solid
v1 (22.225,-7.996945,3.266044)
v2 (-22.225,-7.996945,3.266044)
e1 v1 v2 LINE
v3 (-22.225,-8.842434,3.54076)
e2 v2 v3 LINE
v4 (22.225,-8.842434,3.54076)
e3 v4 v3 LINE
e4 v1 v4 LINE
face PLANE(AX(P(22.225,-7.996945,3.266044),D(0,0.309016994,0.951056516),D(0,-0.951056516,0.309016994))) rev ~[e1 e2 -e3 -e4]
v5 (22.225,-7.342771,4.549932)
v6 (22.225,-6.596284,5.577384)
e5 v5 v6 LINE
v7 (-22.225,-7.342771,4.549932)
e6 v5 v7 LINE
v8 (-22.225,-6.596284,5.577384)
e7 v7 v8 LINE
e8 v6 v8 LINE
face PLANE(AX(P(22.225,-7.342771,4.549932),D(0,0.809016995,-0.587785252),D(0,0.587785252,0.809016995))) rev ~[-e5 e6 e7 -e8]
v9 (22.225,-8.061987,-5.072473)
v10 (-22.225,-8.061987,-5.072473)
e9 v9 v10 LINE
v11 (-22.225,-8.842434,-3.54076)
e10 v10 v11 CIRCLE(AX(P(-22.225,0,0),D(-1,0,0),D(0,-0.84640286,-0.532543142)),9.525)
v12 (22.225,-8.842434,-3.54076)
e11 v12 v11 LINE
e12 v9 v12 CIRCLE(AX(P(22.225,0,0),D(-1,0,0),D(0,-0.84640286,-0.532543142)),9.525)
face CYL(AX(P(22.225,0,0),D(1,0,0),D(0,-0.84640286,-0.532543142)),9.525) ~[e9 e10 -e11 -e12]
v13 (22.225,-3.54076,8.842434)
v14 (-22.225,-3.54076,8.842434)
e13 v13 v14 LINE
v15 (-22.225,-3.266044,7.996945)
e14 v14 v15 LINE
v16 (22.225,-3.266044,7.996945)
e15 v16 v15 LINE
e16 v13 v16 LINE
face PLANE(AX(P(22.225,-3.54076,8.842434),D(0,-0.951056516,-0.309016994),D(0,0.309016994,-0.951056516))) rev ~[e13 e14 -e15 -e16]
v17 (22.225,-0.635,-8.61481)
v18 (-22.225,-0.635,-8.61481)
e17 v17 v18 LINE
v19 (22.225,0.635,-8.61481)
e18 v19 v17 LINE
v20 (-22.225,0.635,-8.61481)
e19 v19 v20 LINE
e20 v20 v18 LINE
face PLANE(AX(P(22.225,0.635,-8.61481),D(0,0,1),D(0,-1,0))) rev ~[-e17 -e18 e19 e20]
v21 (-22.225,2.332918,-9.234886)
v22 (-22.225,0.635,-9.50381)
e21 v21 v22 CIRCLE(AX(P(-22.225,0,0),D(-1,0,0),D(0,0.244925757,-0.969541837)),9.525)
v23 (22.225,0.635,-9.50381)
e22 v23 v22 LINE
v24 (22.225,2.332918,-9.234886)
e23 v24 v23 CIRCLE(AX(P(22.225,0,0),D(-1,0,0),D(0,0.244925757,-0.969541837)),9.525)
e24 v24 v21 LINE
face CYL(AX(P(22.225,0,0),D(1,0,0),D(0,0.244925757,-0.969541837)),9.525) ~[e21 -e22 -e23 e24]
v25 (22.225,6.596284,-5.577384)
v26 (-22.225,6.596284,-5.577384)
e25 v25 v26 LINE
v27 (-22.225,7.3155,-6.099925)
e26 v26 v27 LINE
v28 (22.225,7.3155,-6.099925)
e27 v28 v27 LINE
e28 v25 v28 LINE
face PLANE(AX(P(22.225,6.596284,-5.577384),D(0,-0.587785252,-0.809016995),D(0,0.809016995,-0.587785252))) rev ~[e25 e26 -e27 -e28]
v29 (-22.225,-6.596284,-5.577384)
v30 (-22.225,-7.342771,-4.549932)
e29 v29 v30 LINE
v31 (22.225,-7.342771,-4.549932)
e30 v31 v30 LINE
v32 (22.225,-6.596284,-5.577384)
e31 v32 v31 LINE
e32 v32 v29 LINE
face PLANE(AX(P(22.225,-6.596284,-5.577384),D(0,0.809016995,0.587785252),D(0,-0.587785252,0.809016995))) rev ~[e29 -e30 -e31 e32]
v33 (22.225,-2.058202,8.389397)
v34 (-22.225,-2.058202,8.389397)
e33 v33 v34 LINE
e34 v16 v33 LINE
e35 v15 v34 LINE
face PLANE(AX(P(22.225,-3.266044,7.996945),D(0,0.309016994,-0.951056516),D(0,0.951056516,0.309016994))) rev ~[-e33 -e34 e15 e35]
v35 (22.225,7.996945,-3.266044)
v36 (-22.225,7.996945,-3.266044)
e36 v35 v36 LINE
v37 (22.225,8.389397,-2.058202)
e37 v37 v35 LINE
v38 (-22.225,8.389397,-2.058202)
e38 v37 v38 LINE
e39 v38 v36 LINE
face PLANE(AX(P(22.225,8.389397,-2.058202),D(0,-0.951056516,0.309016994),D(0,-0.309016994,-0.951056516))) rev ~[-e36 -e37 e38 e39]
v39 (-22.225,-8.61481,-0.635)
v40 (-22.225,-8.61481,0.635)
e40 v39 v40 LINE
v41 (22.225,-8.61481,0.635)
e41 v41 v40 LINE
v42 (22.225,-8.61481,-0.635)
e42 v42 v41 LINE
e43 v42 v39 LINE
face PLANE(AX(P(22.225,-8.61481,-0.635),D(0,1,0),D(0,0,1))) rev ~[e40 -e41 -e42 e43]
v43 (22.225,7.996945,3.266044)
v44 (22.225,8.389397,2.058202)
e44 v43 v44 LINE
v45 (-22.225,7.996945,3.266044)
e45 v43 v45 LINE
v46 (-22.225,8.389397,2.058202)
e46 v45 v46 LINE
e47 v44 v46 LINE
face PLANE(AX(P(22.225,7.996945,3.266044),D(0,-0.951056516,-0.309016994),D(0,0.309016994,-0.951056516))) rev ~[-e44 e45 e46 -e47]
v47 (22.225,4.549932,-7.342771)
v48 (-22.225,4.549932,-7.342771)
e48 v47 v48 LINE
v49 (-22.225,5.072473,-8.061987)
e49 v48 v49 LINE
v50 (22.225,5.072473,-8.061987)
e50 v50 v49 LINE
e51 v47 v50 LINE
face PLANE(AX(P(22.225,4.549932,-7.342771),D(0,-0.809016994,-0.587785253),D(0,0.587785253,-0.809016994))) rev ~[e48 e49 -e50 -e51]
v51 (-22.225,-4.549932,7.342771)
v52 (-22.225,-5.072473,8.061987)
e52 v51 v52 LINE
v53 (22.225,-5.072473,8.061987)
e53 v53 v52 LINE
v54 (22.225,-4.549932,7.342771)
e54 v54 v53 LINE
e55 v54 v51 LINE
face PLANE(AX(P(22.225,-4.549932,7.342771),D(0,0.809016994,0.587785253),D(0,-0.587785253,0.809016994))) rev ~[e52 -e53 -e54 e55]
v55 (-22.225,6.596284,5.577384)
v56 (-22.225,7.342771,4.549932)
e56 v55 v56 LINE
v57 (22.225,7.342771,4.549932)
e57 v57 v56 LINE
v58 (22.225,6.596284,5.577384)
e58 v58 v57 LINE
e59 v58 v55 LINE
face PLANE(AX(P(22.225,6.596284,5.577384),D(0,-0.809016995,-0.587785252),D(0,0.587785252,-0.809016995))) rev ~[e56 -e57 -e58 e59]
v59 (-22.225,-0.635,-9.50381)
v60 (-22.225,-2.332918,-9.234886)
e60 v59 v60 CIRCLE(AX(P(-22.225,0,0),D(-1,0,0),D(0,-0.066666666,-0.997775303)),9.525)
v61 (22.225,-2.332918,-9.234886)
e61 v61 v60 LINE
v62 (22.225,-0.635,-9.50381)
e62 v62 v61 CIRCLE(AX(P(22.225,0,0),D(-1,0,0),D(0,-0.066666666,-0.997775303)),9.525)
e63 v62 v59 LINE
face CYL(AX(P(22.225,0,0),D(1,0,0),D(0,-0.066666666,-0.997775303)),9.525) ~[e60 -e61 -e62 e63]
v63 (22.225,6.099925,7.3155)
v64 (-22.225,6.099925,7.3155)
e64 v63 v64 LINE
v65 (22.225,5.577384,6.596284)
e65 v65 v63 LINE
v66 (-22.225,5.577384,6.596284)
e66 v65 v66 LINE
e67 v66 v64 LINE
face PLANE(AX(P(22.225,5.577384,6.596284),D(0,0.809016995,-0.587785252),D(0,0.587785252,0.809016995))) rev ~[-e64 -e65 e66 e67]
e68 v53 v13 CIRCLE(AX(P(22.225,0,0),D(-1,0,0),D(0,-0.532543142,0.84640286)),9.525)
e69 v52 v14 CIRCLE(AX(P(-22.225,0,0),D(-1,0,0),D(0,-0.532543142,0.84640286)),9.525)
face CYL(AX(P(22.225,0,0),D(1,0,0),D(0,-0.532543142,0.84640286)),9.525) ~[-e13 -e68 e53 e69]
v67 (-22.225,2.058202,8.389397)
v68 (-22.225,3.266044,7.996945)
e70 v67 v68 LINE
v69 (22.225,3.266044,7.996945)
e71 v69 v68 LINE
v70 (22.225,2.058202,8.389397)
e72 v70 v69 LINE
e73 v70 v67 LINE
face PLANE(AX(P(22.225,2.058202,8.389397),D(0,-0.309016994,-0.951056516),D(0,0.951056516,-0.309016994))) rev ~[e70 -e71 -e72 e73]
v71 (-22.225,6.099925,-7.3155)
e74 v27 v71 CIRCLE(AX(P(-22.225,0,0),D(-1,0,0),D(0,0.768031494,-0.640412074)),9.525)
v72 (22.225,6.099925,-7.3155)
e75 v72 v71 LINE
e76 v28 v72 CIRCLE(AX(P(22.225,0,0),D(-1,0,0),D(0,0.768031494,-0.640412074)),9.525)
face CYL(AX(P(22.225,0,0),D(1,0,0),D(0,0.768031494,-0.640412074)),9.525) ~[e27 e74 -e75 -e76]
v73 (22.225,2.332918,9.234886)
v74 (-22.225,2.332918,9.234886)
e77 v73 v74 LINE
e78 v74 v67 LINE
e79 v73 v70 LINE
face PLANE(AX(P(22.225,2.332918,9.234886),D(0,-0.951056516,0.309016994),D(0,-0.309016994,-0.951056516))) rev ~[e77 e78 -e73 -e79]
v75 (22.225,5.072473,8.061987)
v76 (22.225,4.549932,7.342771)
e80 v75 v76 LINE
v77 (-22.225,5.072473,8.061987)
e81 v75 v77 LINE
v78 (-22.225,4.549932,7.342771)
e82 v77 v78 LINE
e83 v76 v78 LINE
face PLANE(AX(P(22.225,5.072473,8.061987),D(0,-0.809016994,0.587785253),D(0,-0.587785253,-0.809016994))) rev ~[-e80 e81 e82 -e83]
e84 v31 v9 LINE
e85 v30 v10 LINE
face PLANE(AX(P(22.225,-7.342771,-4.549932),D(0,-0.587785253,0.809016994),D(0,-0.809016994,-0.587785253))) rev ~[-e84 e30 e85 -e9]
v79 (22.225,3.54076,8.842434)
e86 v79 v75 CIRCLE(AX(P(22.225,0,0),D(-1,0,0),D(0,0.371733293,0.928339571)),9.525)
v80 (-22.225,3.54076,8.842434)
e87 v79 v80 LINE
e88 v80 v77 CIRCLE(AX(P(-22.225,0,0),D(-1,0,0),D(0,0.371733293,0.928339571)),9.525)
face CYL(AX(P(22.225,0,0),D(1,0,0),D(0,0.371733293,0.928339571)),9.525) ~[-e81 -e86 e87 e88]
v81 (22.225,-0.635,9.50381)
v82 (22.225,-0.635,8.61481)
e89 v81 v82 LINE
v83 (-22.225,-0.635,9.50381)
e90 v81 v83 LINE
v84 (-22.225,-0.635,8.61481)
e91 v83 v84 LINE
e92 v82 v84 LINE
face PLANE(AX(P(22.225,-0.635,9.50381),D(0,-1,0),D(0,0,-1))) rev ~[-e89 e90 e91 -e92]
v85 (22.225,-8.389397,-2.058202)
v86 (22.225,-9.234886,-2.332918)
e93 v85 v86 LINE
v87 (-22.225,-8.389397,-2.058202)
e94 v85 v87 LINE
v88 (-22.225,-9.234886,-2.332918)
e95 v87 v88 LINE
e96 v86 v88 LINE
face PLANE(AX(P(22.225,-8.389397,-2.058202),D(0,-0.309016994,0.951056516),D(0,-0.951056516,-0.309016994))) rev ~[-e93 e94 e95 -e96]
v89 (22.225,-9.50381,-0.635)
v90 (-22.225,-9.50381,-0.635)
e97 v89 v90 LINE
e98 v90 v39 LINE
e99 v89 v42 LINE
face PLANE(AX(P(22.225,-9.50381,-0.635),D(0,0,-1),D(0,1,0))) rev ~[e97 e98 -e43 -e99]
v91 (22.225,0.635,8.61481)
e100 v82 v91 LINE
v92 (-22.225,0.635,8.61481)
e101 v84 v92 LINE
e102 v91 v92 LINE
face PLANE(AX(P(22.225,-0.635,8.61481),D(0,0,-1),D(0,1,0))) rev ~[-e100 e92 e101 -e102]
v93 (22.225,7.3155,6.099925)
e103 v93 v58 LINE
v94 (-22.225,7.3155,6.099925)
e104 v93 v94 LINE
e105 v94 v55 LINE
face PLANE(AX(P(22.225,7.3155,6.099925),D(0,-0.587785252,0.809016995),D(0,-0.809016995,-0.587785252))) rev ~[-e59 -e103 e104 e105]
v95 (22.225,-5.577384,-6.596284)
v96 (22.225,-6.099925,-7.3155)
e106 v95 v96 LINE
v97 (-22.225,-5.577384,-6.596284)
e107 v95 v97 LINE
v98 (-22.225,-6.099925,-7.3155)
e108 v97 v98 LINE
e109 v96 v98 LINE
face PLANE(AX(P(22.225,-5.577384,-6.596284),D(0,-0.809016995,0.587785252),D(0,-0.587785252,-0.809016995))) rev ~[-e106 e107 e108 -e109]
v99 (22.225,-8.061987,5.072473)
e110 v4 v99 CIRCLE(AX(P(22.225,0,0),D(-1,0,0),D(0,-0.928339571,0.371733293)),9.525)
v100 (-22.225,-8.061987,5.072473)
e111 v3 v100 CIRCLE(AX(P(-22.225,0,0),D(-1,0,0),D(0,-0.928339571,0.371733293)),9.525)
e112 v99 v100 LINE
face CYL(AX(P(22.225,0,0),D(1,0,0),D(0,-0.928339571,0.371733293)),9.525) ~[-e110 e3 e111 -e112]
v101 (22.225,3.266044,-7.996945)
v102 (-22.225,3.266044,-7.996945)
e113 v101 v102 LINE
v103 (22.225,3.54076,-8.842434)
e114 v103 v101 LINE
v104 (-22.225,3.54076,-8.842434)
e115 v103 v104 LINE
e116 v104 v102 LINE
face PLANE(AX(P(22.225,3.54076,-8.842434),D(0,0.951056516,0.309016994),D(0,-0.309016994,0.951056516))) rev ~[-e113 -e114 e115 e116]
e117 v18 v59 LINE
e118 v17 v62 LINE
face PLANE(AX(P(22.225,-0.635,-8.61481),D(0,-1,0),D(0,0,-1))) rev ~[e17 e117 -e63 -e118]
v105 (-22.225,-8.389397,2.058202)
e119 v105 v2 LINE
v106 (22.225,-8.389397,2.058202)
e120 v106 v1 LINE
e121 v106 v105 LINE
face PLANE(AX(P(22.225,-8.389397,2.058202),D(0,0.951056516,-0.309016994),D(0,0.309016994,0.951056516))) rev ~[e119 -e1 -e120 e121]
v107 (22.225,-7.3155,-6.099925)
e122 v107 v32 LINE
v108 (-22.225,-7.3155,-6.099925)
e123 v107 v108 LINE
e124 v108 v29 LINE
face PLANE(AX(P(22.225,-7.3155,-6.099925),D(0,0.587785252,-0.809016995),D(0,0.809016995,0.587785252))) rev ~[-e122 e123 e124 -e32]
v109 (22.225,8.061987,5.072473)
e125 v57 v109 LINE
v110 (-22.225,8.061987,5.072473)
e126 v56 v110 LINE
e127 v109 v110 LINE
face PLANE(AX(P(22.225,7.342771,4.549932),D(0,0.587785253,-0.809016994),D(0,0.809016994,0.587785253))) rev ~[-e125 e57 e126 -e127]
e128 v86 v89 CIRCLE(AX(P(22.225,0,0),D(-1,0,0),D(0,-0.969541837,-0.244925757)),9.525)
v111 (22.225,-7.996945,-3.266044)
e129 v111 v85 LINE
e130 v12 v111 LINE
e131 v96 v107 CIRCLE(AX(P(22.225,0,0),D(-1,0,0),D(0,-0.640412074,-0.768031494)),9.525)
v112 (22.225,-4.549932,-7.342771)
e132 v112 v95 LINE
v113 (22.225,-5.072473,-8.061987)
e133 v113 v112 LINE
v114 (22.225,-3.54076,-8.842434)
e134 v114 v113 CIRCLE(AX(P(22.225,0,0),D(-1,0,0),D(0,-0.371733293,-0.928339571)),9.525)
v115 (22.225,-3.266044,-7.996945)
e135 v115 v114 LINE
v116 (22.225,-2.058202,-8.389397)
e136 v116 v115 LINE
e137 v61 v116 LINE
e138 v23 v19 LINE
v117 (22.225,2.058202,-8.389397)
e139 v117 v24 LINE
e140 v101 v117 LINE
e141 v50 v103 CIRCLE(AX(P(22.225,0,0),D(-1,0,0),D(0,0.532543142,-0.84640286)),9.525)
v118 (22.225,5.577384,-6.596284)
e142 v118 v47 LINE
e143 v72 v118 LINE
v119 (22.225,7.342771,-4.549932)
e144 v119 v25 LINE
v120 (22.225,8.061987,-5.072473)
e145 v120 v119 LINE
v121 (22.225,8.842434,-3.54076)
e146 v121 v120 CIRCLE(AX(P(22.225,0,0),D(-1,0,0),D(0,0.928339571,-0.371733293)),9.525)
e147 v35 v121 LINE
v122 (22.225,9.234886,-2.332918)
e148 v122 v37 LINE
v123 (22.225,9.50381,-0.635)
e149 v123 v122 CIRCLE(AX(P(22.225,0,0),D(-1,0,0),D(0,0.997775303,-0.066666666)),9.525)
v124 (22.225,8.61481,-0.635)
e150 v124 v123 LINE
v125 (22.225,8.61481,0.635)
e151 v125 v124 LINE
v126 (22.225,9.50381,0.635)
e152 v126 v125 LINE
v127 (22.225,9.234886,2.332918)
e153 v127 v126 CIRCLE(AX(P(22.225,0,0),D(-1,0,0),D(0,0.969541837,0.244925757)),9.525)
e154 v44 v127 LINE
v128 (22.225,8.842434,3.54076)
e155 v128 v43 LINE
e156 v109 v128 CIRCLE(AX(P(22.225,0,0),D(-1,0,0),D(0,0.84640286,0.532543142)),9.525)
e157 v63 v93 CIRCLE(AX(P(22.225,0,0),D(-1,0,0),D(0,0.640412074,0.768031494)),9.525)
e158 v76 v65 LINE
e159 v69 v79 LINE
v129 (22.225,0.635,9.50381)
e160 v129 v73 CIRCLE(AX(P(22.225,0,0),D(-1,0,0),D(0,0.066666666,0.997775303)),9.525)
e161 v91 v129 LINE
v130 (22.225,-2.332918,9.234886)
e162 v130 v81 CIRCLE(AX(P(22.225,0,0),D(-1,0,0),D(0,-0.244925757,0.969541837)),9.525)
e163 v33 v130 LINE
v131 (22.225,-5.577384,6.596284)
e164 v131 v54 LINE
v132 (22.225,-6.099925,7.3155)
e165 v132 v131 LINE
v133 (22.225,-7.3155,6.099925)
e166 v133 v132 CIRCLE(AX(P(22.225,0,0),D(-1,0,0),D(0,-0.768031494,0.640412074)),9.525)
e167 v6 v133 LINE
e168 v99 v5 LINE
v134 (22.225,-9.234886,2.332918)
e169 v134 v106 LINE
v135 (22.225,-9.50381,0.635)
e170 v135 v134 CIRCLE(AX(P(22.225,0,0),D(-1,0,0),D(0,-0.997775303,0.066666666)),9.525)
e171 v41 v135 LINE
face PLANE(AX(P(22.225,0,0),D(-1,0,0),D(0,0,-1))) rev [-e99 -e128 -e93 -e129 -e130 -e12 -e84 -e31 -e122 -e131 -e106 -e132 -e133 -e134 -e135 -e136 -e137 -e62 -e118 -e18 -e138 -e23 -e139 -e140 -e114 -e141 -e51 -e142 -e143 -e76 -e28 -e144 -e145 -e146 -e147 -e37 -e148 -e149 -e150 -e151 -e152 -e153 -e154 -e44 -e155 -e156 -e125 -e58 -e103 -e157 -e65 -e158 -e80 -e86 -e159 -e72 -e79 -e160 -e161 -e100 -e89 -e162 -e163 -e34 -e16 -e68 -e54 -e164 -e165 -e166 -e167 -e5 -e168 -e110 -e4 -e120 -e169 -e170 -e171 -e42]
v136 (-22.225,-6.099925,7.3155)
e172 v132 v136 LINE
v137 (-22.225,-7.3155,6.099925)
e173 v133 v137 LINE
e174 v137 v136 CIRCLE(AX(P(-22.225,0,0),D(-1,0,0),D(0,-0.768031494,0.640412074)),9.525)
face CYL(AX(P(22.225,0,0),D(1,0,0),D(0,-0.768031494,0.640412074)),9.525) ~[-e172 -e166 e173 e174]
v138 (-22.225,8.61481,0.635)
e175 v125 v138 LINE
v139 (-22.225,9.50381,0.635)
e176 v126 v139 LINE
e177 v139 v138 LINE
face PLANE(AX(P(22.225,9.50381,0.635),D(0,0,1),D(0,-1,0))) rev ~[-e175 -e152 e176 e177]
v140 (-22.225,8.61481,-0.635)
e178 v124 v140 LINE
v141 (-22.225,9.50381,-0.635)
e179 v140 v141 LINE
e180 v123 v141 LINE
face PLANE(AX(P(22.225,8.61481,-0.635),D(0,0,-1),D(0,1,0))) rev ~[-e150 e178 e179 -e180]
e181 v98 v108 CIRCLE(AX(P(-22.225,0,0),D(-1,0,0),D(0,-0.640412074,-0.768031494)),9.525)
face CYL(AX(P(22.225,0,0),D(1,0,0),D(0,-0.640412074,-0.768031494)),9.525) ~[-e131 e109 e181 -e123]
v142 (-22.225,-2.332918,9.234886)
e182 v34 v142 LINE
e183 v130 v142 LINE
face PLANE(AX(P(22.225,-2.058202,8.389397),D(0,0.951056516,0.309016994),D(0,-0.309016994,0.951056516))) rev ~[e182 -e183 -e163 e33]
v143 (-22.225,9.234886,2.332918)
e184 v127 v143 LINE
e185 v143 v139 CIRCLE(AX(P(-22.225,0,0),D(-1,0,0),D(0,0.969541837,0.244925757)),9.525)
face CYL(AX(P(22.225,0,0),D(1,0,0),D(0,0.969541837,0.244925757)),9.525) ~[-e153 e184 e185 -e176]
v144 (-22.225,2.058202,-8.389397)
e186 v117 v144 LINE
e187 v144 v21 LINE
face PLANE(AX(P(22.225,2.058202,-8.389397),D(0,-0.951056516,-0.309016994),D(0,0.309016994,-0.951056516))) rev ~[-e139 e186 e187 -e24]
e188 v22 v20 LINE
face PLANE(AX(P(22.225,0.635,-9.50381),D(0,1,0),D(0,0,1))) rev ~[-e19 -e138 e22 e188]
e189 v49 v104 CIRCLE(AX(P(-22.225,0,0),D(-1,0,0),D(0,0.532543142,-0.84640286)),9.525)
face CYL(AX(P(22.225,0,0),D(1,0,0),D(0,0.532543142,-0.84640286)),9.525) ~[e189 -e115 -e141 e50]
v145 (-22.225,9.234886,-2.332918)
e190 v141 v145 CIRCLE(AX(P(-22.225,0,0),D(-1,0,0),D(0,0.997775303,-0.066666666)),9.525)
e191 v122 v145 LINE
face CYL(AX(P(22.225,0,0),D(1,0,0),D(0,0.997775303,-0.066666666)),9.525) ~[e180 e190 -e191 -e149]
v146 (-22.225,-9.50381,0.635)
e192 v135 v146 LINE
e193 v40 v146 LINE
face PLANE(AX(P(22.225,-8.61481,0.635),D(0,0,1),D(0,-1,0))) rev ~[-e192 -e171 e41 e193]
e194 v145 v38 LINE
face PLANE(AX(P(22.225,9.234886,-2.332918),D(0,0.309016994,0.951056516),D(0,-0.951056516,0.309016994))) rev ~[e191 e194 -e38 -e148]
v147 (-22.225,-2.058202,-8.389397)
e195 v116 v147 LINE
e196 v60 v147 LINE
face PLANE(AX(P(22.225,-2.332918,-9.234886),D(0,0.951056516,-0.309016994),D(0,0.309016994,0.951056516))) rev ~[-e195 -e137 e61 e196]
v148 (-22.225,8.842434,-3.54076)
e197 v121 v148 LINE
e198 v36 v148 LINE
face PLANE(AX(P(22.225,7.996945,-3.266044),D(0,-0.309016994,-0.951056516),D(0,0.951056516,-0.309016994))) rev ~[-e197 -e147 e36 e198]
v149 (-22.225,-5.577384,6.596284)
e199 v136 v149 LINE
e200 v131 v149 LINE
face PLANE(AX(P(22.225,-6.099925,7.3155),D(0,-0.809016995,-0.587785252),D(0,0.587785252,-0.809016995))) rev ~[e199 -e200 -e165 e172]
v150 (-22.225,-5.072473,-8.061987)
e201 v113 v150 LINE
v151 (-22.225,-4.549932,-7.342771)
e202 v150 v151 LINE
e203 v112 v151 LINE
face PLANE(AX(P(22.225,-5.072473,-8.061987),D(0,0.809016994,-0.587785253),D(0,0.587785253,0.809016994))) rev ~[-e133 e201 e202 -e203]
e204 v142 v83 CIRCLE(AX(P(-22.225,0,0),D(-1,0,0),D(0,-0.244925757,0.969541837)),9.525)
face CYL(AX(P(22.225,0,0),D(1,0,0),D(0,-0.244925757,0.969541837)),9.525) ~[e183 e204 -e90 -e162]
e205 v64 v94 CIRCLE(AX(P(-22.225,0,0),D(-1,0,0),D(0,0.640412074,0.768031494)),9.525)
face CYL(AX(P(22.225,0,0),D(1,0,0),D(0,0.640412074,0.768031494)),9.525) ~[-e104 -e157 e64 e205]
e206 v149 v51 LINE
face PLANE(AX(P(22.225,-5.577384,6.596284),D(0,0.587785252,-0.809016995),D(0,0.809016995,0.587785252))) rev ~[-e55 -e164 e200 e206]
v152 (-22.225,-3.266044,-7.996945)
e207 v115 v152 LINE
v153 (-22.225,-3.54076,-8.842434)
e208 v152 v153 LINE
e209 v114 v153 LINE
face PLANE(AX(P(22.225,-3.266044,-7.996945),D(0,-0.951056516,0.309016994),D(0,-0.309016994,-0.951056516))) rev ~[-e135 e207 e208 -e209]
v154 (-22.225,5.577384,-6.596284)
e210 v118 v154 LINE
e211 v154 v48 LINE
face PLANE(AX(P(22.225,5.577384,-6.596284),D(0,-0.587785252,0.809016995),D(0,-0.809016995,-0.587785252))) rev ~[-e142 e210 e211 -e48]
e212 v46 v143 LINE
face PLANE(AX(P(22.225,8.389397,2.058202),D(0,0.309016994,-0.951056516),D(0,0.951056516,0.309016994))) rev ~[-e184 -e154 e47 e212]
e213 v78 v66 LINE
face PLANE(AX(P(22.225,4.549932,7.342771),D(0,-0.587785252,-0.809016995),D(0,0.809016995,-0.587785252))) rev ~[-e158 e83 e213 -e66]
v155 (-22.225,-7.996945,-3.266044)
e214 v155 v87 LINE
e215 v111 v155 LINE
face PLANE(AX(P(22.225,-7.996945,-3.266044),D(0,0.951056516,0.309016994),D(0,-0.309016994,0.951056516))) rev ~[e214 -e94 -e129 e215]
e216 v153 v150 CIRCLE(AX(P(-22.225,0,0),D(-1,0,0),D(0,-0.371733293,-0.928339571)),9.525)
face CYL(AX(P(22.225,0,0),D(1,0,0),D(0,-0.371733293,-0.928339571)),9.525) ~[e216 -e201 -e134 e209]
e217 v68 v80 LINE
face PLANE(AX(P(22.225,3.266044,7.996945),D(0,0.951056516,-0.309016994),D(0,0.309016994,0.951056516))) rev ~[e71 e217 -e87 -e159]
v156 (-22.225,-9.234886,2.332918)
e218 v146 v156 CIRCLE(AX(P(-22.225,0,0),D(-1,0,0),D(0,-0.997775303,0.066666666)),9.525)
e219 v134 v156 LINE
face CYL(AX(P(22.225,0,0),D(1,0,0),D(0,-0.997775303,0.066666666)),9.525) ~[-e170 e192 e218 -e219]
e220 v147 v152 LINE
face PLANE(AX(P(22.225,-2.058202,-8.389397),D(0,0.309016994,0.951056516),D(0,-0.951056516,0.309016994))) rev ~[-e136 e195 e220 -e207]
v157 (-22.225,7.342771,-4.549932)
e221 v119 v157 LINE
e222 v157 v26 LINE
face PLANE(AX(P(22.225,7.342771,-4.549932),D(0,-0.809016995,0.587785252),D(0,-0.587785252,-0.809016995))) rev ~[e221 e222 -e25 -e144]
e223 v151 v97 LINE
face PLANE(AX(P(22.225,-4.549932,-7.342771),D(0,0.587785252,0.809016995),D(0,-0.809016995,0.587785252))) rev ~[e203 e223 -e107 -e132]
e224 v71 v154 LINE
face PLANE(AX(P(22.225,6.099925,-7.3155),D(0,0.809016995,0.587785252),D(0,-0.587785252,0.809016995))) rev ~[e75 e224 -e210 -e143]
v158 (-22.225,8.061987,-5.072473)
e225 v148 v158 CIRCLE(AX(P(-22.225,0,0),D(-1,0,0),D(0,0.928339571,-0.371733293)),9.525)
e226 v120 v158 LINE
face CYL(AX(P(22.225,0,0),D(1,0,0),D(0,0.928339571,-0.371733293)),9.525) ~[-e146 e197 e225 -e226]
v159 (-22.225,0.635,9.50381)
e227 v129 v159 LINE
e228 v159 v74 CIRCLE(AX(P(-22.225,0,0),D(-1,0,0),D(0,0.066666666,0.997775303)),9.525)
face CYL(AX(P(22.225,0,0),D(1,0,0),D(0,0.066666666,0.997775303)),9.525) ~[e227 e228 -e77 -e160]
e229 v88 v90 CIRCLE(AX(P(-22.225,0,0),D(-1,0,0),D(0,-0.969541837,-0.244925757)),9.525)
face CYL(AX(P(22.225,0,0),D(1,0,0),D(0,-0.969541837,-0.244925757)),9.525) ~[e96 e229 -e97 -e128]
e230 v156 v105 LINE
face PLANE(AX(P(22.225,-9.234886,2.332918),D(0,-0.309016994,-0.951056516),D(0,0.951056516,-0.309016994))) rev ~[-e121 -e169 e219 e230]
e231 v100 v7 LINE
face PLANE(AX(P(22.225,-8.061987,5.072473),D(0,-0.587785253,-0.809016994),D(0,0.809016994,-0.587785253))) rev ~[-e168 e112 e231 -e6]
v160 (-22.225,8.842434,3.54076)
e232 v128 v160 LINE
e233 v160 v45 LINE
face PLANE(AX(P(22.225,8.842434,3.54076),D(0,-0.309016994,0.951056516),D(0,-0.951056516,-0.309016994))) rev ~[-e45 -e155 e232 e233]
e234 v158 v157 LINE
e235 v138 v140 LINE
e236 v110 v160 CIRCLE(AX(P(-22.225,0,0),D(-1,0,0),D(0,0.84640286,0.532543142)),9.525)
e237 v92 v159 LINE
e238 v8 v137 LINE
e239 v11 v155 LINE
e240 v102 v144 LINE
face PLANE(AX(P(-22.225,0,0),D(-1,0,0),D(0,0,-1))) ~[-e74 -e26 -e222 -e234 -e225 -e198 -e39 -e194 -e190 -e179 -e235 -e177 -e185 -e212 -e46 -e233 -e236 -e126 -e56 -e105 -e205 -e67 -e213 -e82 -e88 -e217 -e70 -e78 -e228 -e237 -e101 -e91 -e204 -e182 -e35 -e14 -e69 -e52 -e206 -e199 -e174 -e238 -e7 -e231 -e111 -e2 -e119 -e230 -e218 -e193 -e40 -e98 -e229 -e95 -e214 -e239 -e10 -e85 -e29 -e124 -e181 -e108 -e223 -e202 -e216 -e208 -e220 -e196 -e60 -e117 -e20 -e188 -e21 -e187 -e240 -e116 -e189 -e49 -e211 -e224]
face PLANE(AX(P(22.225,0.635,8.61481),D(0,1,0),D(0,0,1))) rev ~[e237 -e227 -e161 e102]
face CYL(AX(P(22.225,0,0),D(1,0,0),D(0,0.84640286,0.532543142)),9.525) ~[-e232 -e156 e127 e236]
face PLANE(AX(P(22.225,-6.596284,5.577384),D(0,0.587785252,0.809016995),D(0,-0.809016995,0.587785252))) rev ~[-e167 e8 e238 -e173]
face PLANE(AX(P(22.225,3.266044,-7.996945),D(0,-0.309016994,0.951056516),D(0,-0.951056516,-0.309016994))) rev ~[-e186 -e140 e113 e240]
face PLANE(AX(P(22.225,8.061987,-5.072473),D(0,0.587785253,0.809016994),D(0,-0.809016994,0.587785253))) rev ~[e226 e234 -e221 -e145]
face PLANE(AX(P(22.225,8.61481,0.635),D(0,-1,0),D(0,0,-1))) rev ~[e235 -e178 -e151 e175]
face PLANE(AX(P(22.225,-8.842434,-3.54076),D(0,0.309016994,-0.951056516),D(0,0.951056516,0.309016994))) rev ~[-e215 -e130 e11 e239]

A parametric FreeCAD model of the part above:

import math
import FreeCAD as App
import Part
import Sketcher
from FreeCAD import Vector
Q = App.Units.Quantity


def add_polygon(sketch, points):
    """Adds a closed chain of lines whose ends are joined by coincident constraints."""
    first, n = sketch.GeometryCount, len(points)
    for a, b in zip(points, points[1:] + points[:1]):
        sketch.addGeometry(Part.LineSegment(App.Vector(*a, 0), App.Vector(*b, 0)), False)
    for i in range(n):
        sketch.addConstraint(Sketcher.Constraint("Coincident", first + i, 2, first + (i + 1) % n, 1))

doc = App.newDocument("Part")
body = doc.addObject("PartDesign::Body", "Body")

sketch1 = body.newObject("Sketcher::SketchObject", "Sketch")
sketch1.AttachmentSupport = (doc.getObject("XZ_Plane"), [""])
sketch1.MapMode = "FlatFace"
add_polygon(sketch1, [(-22.225, -9.525), (-22.225, 0), (22.225, 0), (22.225, -9.525)])
sketch1.addConstraint([
    Sketcher.Constraint("Vertical", 0),
    Sketcher.Constraint("Horizontal", 1),
    Sketcher.Constraint("Vertical", 2),
    Sketcher.Constraint("Horizontal", 3),
    Sketcher.Constraint("Symmetric", 0, 2, 1, 2, -1, 1),
    Sketcher.Constraint("DistanceX", 1, 1, 1, 2, Q("1.75 in")),
    Sketcher.Constraint("DistanceY", 0, 1, 0, 2, Q("0.375 in")),
])
revolution = body.newObject("PartDesign::Revolution", "Revolution")
revolution.Profile = sketch1
revolution.ReferenceAxis = (sketch1, ["H_Axis"])
revolution.Angle = 360

sketch2 = body.newObject("Sketcher::SketchObject", "Sketch001")
sketch2.AttachmentSupport = (doc.getObject("YZ_Plane"), [""])
sketch2.MapMode = "FlatFace"
sketch2.AttachmentOffset = App.Placement(Vector(0, 0, 0.875 * 25.4), App.Rotation())
add_polygon(sketch2, [(15.723, 15.723), (-15.723, 15.723), (-15.723, -15.723), (15.723, -15.723)])
sketch2.addGeometry(Part.LineSegment(Vector(9.50381, 0.635, 0), Vector(8.61481, 0.635, 0)), False)
sketch2.addGeometry(Part.LineSegment(Vector(8.61481, 0.635, 0), Vector(8.61481, -0.635, 0)), False)
sketch2.addGeometry(Part.LineSegment(Vector(8.61481, -0.635, 0), Vector(9.50381, -0.635, 0)), False)
sketch2.addGeometry(Part.ArcOfCircle(Part.Circle(Vector(0, 0, 0), Vector(0, 0, 1), 9.525), math.radians(-14.177446), math.radians(-3.822554)), False)
sketch2.addGeometry(Part.LineSegment(Vector(9.234886, -2.332918, 0), Vector(8.389397, -2.058202, 0)), False)
sketch2.addGeometry(Part.LineSegment(Vector(8.389397, -2.058202, 0), Vector(7.996945, -3.266044, 0)), False)
sketch2.addGeometry(Part.LineSegment(Vector(7.996945, -3.266044, 0), Vector(8.842434, -3.54076, 0)), False)
sketch2.addGeometry(Part.ArcOfCircle(Part.Circle(Vector(0, 0, 0), Vector(0, 0, 1), 9.525), math.radians(-32.177446), math.radians(-21.822554)), False)
sketch2.addGeometry(Part.LineSegment(Vector(8.061987, -5.072473, 0), Vector(7.342771, -4.549932, 0)), False)
sketch2.addGeometry(Part.LineSegment(Vector(7.342771, -4.549932, 0), Vector(6.596284, -5.577384, 0)), False)
sketch2.addGeometry(Part.LineSegment(Vector(6.596284, -5.577384, 0), Vector(7.3155, -6.099925, 0)), False)
sketch2.addGeometry(Part.ArcOfCircle(Part.Circle(Vector(0, 0, 0), Vector(0, 0, 1), 9.525), math.radians(-50.177446), math.radians(-39.822554)), False)
sketch2.addGeometry(Part.LineSegment(Vector(6.099925, -7.3155, 0), Vector(5.577384, -6.596284, 0)), False)
sketch2.addGeometry(Part.LineSegment(Vector(5.577384, -6.596284, 0), Vector(4.549932, -7.342771, 0)), False)
sketch2.addGeometry(Part.LineSegment(Vector(4.549932, -7.342771, 0), Vector(5.072473, -8.061987, 0)), False)
sketch2.addGeometry(Part.ArcOfCircle(Part.Circle(Vector(0, 0, 0), Vector(0, 0, 1), 9.525), math.radians(-68.177446), math.radians(-57.822554)), False)
sketch2.addGeometry(Part.LineSegment(Vector(3.54076, -8.842434, 0), Vector(3.266044, -7.996945, 0)), False)
sketch2.addGeometry(Part.LineSegment(Vector(3.266044, -7.996945, 0), Vector(2.058202, -8.389397, 0)), False)
sketch2.addGeometry(Part.LineSegment(Vector(2.058202, -8.389397, 0), Vector(2.332918, -9.234886, 0)), False)
sketch2.addGeometry(Part.ArcOfCircle(Part.Circle(Vector(0, 0, 0), Vector(0, 0, 1), 9.525), math.radians(-86.177446), math.radians(-75.822554)), False)
sketch2.addGeometry(Part.LineSegment(Vector(0.635, -9.50381, 0), Vector(0.635, -8.61481, 0)), False)
sketch2.addGeometry(Part.LineSegment(Vector(0.635, -8.61481, 0), Vector(-0.635, -8.61481, 0)), False)
sketch2.addGeometry(Part.LineSegment(Vector(-0.635, -8.61481, 0), Vector(-0.635, -9.50381, 0)), False)
sketch2.addGeometry(Part.ArcOfCircle(Part.Circle(Vector(0, 0, 0), Vector(0, 0, 1), 9.525), math.radians(-104.177446), math.radians(-93.822554)), False)
sketch2.addGeometry(Part.LineSegment(Vector(-2.332918, -9.234886, 0), Vector(-2.058202, -8.389397, 0)), False)
sketch2.addGeometry(Part.LineSegment(Vector(-2.058202, -8.389397, 0), Vector(-3.266044, -7.996945, 0)), False)
sketch2.addGeometry(Part.LineSegment(Vector(-3.266044, -7.996945, 0), Vector(-3.54076, -8.842434, 0)), False)
sketch2.addGeometry(Part.ArcOfCircle(Part.Circle(Vector(0, 0, 0), Vector(0, 0, 1), 9.525), math.radians(-122.177446), math.radians(-111.822554)), False)
sketch2.addGeometry(Part.LineSegment(Vector(-5.072473, -8.061987, 0), Vector(-4.549932, -7.342771, 0)), False)
sketch2.addGeometry(Part.LineSegment(Vector(-4.549932, -7.342771, 0), Vector(-5.577384, -6.596284, 0)), False)
sketch2.addGeometry(Part.LineSegment(Vector(-5.577384, -6.596284, 0), Vector(-6.099925, -7.3155, 0)), False)
sketch2.addGeometry(Part.ArcOfCircle(Part.Circle(Vector(0, 0, 0), Vector(0, 0, 1), 9.525), math.radians(-140.177446), math.radians(-129.822554)), False)
sketch2.addGeometry(Part.LineSegment(Vector(-7.3155, -6.099925, 0), Vector(-6.596284, -5.577384, 0)), False)
sketch2.addGeometry(Part.LineSegment(Vector(-6.596284, -5.577384, 0), Vector(-7.342771, -4.549932, 0)), False)
sketch2.addGeometry(Part.LineSegment(Vector(-7.342771, -4.549932, 0), Vector(-8.061987, -5.072473, 0)), False)
sketch2.addGeometry(Part.ArcOfCircle(Part.Circle(Vector(0, 0, 0), Vector(0, 0, 1), 9.525), math.radians(-158.177446), math.radians(-147.822554)), False)
sketch2.addGeometry(Part.LineSegment(Vector(-8.842434, -3.54076, 0), Vector(-7.996945, -3.266044, 0)), False)
sketch2.addGeometry(Part.LineSegment(Vector(-7.996945, -3.266044, 0), Vector(-8.389397, -2.058202, 0)), False)
sketch2.addGeometry(Part.LineSegment(Vector(-8.389397, -2.058202, 0), Vector(-9.234886, -2.332918, 0)), False)
sketch2.addGeometry(Part.ArcOfCircle(Part.Circle(Vector(0, 0, 0), Vector(0, 0, 1), 9.525), math.radians(-176.177446), math.radians(-165.822554)), False)
sketch2.addGeometry(Part.LineSegment(Vector(-9.50381, -0.635, 0), Vector(-8.61481, -0.635, 0)), False)
sketch2.addGeometry(Part.LineSegment(Vector(-8.61481, -0.635, 0), Vector(-8.61481, 0.635, 0)), False)
sketch2.addGeometry(Part.LineSegment(Vector(-8.61481, 0.635, 0), Vector(-9.50381, 0.635, 0)), False)
sketch2.addGeometry(Part.ArcOfCircle(Part.Circle(Vector(0, 0, 0), Vector(0, 0, 1), 9.525), math.radians(165.822554), math.radians(176.177446)), False)
sketch2.addGeometry(Part.LineSegment(Vector(-9.234886, 2.332918, 0), Vector(-8.389397, 2.058202, 0)), False)
sketch2.addGeometry(Part.LineSegment(Vector(-8.389397, 2.058202, 0), Vector(-7.996945, 3.266044, 0)), False)
sketch2.addGeometry(Part.LineSegment(Vector(-7.996945, 3.266044, 0), Vector(-8.842434, 3.54076, 0)), False)
sketch2.addGeometry(Part.ArcOfCircle(Part.Circle(Vector(0, 0, 0), Vector(0, 0, 1), 9.525), math.radians(147.822554), math.radians(158.177446)), False)
sketch2.addGeometry(Part.LineSegment(Vector(-8.061987, 5.072473, 0), Vector(-7.342771, 4.549932, 0)), False)
sketch2.addGeometry(Part.LineSegment(Vector(-7.342771, 4.549932, 0), Vector(-6.596284, 5.577384, 0)), False)
sketch2.addGeometry(Part.LineSegment(Vector(-6.596284, 5.577384, 0), Vector(-7.3155, 6.099925, 0)), False)
sketch2.addGeometry(Part.ArcOfCircle(Part.Circle(Vector(0, 0, 0), Vector(0, 0, 1), 9.525), math.radians(129.822554), math.radians(140.177446)), False)
sketch2.addGeometry(Part.LineSegment(Vector(-6.099925, 7.3155, 0), Vector(-5.577384, 6.596284, 0)), False)
sketch2.addGeometry(Part.LineSegment(Vector(-5.577384, 6.596284, 0), Vector(-4.549932, 7.342771, 0)), False)
sketch2.addGeometry(Part.LineSegment(Vector(-4.549932, 7.342771, 0), Vector(-5.072473, 8.061987, 0)), False)
sketch2.addGeometry(Part.ArcOfCircle(Part.Circle(Vector(0, 0, 0), Vector(0, 0, 1), 9.525), math.radians(111.822554), math.radians(122.177446)), False)
sketch2.addGeometry(Part.LineSegment(Vector(-3.54076, 8.842434, 0), Vector(-3.266044, 7.996945, 0)), False)
sketch2.addGeometry(Part.LineSegment(Vector(-3.266044, 7.996945, 0), Vector(-2.058202, 8.389397, 0)), False)
sketch2.addGeometry(Part.LineSegment(Vector(-2.058202, 8.389397, 0), Vector(-2.332918, 9.234886, 0)), False)
sketch2.addGeometry(Part.ArcOfCircle(Part.Circle(Vector(0, 0, 0), Vector(0, 0, 1), 9.525), math.radians(93.822554), math.radians(104.177446)), False)
sketch2.addGeometry(Part.LineSegment(Vector(-0.635, 9.50381, 0), Vector(-0.635, 8.61481, 0)), False)
sketch2.addGeometry(Part.LineSegment(Vector(-0.635, 8.61481, 0), Vector(0.635, 8.61481, 0)), False)
sketch2.addGeometry(Part.LineSegment(Vector(0.635, 8.61481, 0), Vector(0.635, 9.50381, 0)), False)
sketch2.addGeometry(Part.ArcOfCircle(Part.Circle(Vector(0, 0, 0), Vector(0, 0, 1), 9.525), math.radians(75.822554), math.radians(86.177446)), False)
sketch2.addGeometry(Part.LineSegment(Vector(2.332918, 9.234886, 0), Vector(2.058202, 8.389397, 0)), False)
sketch2.addGeometry(Part.LineSegment(Vector(2.058202, 8.389397, 0), Vector(3.266044, 7.996945, 0)), False)
sketch2.addGeometry(Part.LineSegment(Vector(3.266044, 7.996945, 0), Vector(3.54076, 8.842434, 0)), False)
sketch2.addGeometry(Part.ArcOfCircle(Part.Circle(Vector(0, 0, 0), Vector(0, 0, 1), 9.525), math.radians(57.822554), math.radians(68.177446)), False)
sketch2.addGeometry(Part.LineSegment(Vector(5.072473, 8.061987, 0), Vector(4.549932, 7.342771, 0)), False)
sketch2.addGeometry(Part.LineSegment(Vector(4.549932, 7.342771, 0), Vector(5.577384, 6.596284, 0)), False)
sketch2.addGeometry(Part.LineSegment(Vector(5.577384, 6.596284, 0), Vector(6.099925, 7.3155, 0)), False)
sketch2.addGeometry(Part.ArcOfCircle(Part.Circle(Vector(0, 0, 0), Vector(0, 0, 1), 9.525), math.radians(39.822554), math.radians(50.177446)), False)
sketch2.addGeometry(Part.LineSegment(Vector(7.3155, 6.099925, 0), Vector(6.596284, 5.577384, 0)), False)
sketch2.addGeometry(Part.LineSegment(Vector(6.596284, 5.577384, 0), Vector(7.342771, 4.549932, 0)), False)
sketch2.addGeometry(Part.LineSegment(Vector(7.342771, 4.549932, 0), Vector(8.061987, 5.072473, 0)), False)
sketch2.addGeometry(Part.ArcOfCircle(Part.Circle(Vector(0, 0, 0), Vector(0, 0, 1), 9.525), math.radians(21.822554), math.radians(32.177446)), False)
sketch2.addGeometry(Part.LineSegment(Vector(8.842434, 3.54076, 0), Vector(7.996945, 3.266044, 0)), False)
sketch2.addGeometry(Part.LineSegment(Vector(7.996945, 3.266044, 0), Vector(8.389397, 2.058202, 0)), False)
sketch2.addGeometry(Part.LineSegment(Vector(8.389397, 2.058202, 0), Vector(9.234886, 2.332918, 0)), False)
sketch2.addGeometry(Part.ArcOfCircle(Part.Circle(Vector(0, 0, 0), Vector(0, 0, 1), 9.525), math.radians(3.822554), math.radians(14.177446)), False)
sketch2.addConstraint([
    Sketcher.Constraint("Coincident", 4, 2, 5, 1),
    Sketcher.Constraint("Coincident", 5, 2, 6, 1),
    Sketcher.Constraint("Coincident", 6, 2, 7, 2),
    Sketcher.Constraint("Coincident", 7, 1, 8, 1),
    Sketcher.Constraint("Coincident", 8, 2, 9, 1),
    Sketcher.Constraint("Coincident", 9, 2, 10, 1),
    Sketcher.Constraint("Coincident", 10, 2, 11, 2),
    Sketcher.Constraint("Coincident", 11, 1, 12, 1),
    Sketcher.Constraint("Coincident", 12, 2, 13, 1),
    Sketcher.Constraint("Coincident", 13, 2, 14, 1),
    Sketcher.Constraint("Coincident", 14, 2, 15, 2),
    Sketcher.Constraint("Coincident", 15, 1, 16, 1),
    Sketcher.Constraint("Coincident", 16, 2, 17, 1),
    Sketcher.Constraint("Coincident", 17, 2, 18, 1),
    Sketcher.Constraint("Coincident", 18, 2, 19, 2),
    Sketcher.Constraint("Coincident", 19, 1, 20, 1),
    Sketcher.Constraint("Coincident", 20, 2, 21, 1),
    Sketcher.Constraint("Coincident", 21, 2, 22, 1),
    Sketcher.Constraint("Coincident", 22, 2, 23, 2),
    Sketcher.Constraint("Coincident", 23, 1, 24, 1),
    Sketcher.Constraint("Coincident", 24, 2, 25, 1),
    Sketcher.Constraint("Coincident", 25, 2, 26, 1),
    Sketcher.Constraint("Coincident", 26, 2, 27, 2),
    Sketcher.Constraint("Coincident", 27, 1, 28, 1),
    Sketcher.Constraint("Coincident", 28, 2, 29, 1),
    Sketcher.Constraint("Coincident", 29, 2, 30, 1),
    Sketcher.Constraint("Coincident", 30, 2, 31, 2),
    Sketcher.Constraint("Coincident", 31, 1, 32, 1),
    Sketcher.Constraint("Coincident", 32, 2, 33, 1),
    Sketcher.Constraint("Coincident", 33, 2, 34, 1),
    Sketcher.Constraint("Coincident", 34, 2, 35, 2),
    Sketcher.Constraint("Coincident", 35, 1, 36, 1),
    Sketcher.Constraint("Coincident", 36, 2, 37, 1),
    Sketcher.Constraint("Coincident", 37, 2, 38, 1),
    Sketcher.Constraint("Coincident", 38, 2, 39, 2),
    Sketcher.Constraint("Coincident", 39, 1, 40, 1),
    Sketcher.Constraint("Coincident", 40, 2, 41, 1),
    Sketcher.Constraint("Coincident", 41, 2, 42, 1),
    Sketcher.Constraint("Coincident", 42, 2, 43, 2),
    Sketcher.Constraint("Coincident", 43, 1, 44, 1),
    Sketcher.Constraint("Coincident", 44, 2, 45, 1),
    Sketcher.Constraint("Coincident", 45, 2, 46, 1),
    Sketcher.Constraint("Coincident", 46, 2, 47, 2),
    Sketcher.Constraint("Coincident", 47, 1, 48, 1),
    Sketcher.Constraint("Coincident", 48, 2, 49, 1),
    Sketcher.Constraint("Coincident", 49, 2, 50, 1),
    Sketcher.Constraint("Coincident", 50, 2, 51, 2),
    Sketcher.Constraint("Coincident", 51, 1, 52, 1),
    Sketcher.Constraint("Coincident", 52, 2, 53, 1),
    Sketcher.Constraint("Coincident", 53, 2, 54, 1),
    Sketcher.Constraint("Coincident", 54, 2, 55, 2),
    Sketcher.Constraint("Coincident", 55, 1, 56, 1),
    Sketcher.Constraint("Coincident", 56, 2, 57, 1),
    Sketcher.Constraint("Coincident", 57, 2, 58, 1),
    Sketcher.Constraint("Coincident", 58, 2, 59, 2),
    Sketcher.Constraint("Coincident", 59, 1, 60, 1),
    Sketcher.Constraint("Coincident", 60, 2, 61, 1),
    Sketcher.Constraint("Coincident", 61, 2, 62, 1),
    Sketcher.Constraint("Coincident", 62, 2, 63, 2),
    Sketcher.Constraint("Coincident", 63, 1, 64, 1),
    Sketcher.Constraint("Coincident", 64, 2, 65, 1),
    Sketcher.Constraint("Coincident", 65, 2, 66, 1),
    Sketcher.Constraint("Coincident", 66, 2, 67, 2),
    Sketcher.Constraint("Coincident", 67, 1, 68, 1),
    Sketcher.Constraint("Coincident", 68, 2, 69, 1),
    Sketcher.Constraint("Coincident", 69, 2, 70, 1),
    Sketcher.Constraint("Coincident", 70, 2, 71, 2),
    Sketcher.Constraint("Coincident", 71, 1, 72, 1),
    Sketcher.Constraint("Coincident", 72, 2, 73, 1),
    Sketcher.Constraint("Coincident", 73, 2, 74, 1),
    Sketcher.Constraint("Coincident", 74, 2, 75, 2),
    Sketcher.Constraint("Coincident", 75, 1, 76, 1),
    Sketcher.Constraint("Coincident", 76, 2, 77, 1),
    Sketcher.Constraint("Coincident", 77, 2, 78, 1),
    Sketcher.Constraint("Coincident", 78, 2, 79, 2),
    Sketcher.Constraint("Coincident", 79, 1, 80, 1),
    Sketcher.Constraint("Coincident", 80, 2, 81, 1),
    Sketcher.Constraint("Coincident", 81, 2, 82, 1),
    Sketcher.Constraint("Coincident", 82, 2, 83, 2),
    Sketcher.Constraint("Coincident", 83, 1, 4, 1),
    Sketcher.Constraint("Horizontal", 0),
    Sketcher.Constraint("Vertical", 1),
    Sketcher.Constraint("Horizontal", 2),
    Sketcher.Constraint("Vertical", 3),
    Sketcher.Constraint("Horizontal", 4),
    Sketcher.Constraint("Vertical", 5),
    Sketcher.Constraint("Horizontal", 6),
    Sketcher.Constraint("Vertical", 24),
    Sketcher.Constraint("Horizontal", 25),
    Sketcher.Constraint("Vertical", 26),
    Sketcher.Constraint("Horizontal", 44),
    Sketcher.Constraint("Vertical", 45),
    Sketcher.Constraint("Horizontal", 46),
    Sketcher.Constraint("Vertical", 64),
    Sketcher.Constraint("Horizontal", 65),
    Sketcher.Constraint("Vertical", 66),
    Sketcher.Constraint("Coincident", 7, 3, -1, 1),
    Sketcher.Constraint("Coincident", 11, 3, -1, 1),
    Sketcher.Constraint("Coincident", 15, 3, -1, 1),
    Sketcher.Constraint("Coincident", 19, 3, -1, 1),
    Sketcher.Constraint("Coincident", 23, 3, -1, 1),
    Sketcher.Constraint("Coincident", 27, 3, -1, 1),
    Sketcher.Constraint("Coincident", 31, 3, -1, 1),
    Sketcher.Constraint("Coincident", 35, 3, -1, 1),
    Sketcher.Constraint("Coincident", 39, 3, -1, 1),
    Sketcher.Constraint("Coincident", 43, 3, -1, 1),
    Sketcher.Constraint("Coincident", 47, 3, -1, 1),
    Sketcher.Constraint("Coincident", 51, 3, -1, 1),
    Sketcher.Constraint("Coincident", 55, 3, -1, 1),
    Sketcher.Constraint("Coincident", 59, 3, -1, 1),
    Sketcher.Constraint("Coincident", 63, 3, -1, 1),
    Sketcher.Constraint("Coincident", 67, 3, -1, 1),
    Sketcher.Constraint("Coincident", 71, 3, -1, 1),
    Sketcher.Constraint("Coincident", 75, 3, -1, 1),
    Sketcher.Constraint("Coincident", 79, 3, -1, 1),
    Sketcher.Constraint("Coincident", 83, 3, -1, 1),
    Sketcher.Constraint("Equal", 7, 11),
    Sketcher.Constraint("Equal", 11, 15),
    Sketcher.Constraint("Equal", 15, 19),
    Sketcher.Constraint("Equal", 19, 23),
    Sketcher.Constraint("Equal", 23, 27),
    Sketcher.Constraint("Equal", 27, 31),
    Sketcher.Constraint("Equal", 31, 35),
    Sketcher.Constraint("Equal", 35, 39),
    Sketcher.Constraint("Equal", 39, 43),
    Sketcher.Constraint("Equal", 43, 47),
    Sketcher.Constraint("Equal", 47, 51),
    Sketcher.Constraint("Equal", 51, 55),
    Sketcher.Constraint("Equal", 55, 59),
    Sketcher.Constraint("Equal", 59, 63),
    Sketcher.Constraint("Equal", 63, 67),
    Sketcher.Constraint("Equal", 67, 71),
    Sketcher.Constraint("Equal", 71, 75),
    Sketcher.Constraint("Equal", 75, 79),
    Sketcher.Constraint("Equal", 79, 83),
    Sketcher.Constraint("Symmetric", 0, 2, 2, 2, -1, 1),
    Sketcher.Constraint("Symmetric", 4, 2, 44, 2, -1, 1),
    Sketcher.Constraint("Symmetric", 8, 2, 48, 2, -1, 1),
    Sketcher.Constraint("Symmetric", 9, 2, 49, 2, -1, 1),
    Sketcher.Constraint("Symmetric", 12, 2, 52, 2, -1, 1),
    Sketcher.Constraint("Symmetric", 13, 2, 53, 2, -1, 1),
    Sketcher.Constraint("Symmetric", 16, 2, 56, 2, -1, 1),
    Sketcher.Constraint("Symmetric", 17, 2, 57, 2, -1, 1),
    Sketcher.Constraint("Symmetric", 20, 2, 60, 2, -1, 1),
    Sketcher.Constraint("Symmetric", 21, 2, 61, 2, -1, 1),
    Sketcher.Constraint("Symmetric", 24, 2, 64, 2, -1, 1),
    Sketcher.Constraint("Symmetric", 28, 2, 68, 2, -1, 1),
    Sketcher.Constraint("Symmetric", 29, 2, 69, 2, -1, 1),
    Sketcher.Constraint("Symmetric", 32, 2, 72, 2, -1, 1),
    Sketcher.Constraint("Symmetric", 33, 2, 73, 2, -1, 1),
    Sketcher.Constraint("Symmetric", 36, 2, 76, 2, -1, 1),
    Sketcher.Constraint("Symmetric", 37, 2, 77, 2, -1, 1),
    Sketcher.Constraint("Symmetric", 40, 2, 80, 2, -1, 1),
    Sketcher.Constraint("Symmetric", 41, 2, 81, 2, -1, 1),
    Sketcher.Constraint("Symmetric", 21, 2, 28, 2, -2),
    Sketcher.Constraint("Symmetric", 20, 2, 29, 2, -2),
    Sketcher.Constraint("Symmetric", 17, 2, 32, 2, -2),
    Sketcher.Constraint("Symmetric", 16, 2, 33, 2, -2),
    Sketcher.Constraint("Symmetric", 13, 2, 36, 2, -2),
    Sketcher.Constraint("Symmetric", 12, 2, 37, 2, -2),
    Sketcher.Constraint("Symmetric", 9, 2, 40, 2, -2),
    Sketcher.Constraint("Symmetric", 8, 2, 41, 2, -2),
    Sketcher.Constraint("Perpendicular", 8, 9),
    Sketcher.Constraint("Perpendicular", 9, 10),
    Sketcher.Constraint("Perpendicular", 12, 13),
    Sketcher.Constraint("Perpendicular", 13, 14),
    Sketcher.Constraint("Perpendicular", 16, 17),
    Sketcher.Constraint("Perpendicular", 17, 18),
    Sketcher.Constraint("Perpendicular", 20, 21),
    Sketcher.Constraint("Perpendicular", 21, 22),
    Sketcher.Constraint("Perpendicular", 10, 28),
    Sketcher.Constraint("Perpendicular", 28, 29),
    Sketcher.Constraint("Perpendicular", 29, 30),
    Sketcher.Constraint("Perpendicular", 14, 32),
    Sketcher.Constraint("Perpendicular", 32, 33),
    Sketcher.Constraint("Perpendicular", 33, 34),
    Sketcher.Constraint("Perpendicular", 18, 36),
    Sketcher.Constraint("Perpendicular", 37, 38),
    Sketcher.Constraint("Perpendicular", 22, 40),
    Sketcher.Constraint("Perpendicular", 41, 42),
    Sketcher.Constraint("Perpendicular", 30, 48),
    Sketcher.Constraint("Perpendicular", 49, 50),
    Sketcher.Constraint("Perpendicular", 34, 52),
    Sketcher.Constraint("Perpendicular", 53, 54),
    Sketcher.Constraint("Perpendicular", 38, 56),
    Sketcher.Constraint("Perpendicular", 57, 58),
    Sketcher.Constraint("Perpendicular", 42, 60),
    Sketcher.Constraint("Perpendicular", 61, 62),
    Sketcher.Constraint("Perpendicular", 50, 68),
    Sketcher.Constraint("Perpendicular", 69, 70),
    Sketcher.Constraint("Perpendicular", 54, 72),
    Sketcher.Constraint("Perpendicular", 73, 74),
    Sketcher.Constraint("Perpendicular", 58, 76),
    Sketcher.Constraint("Perpendicular", 77, 78),
    Sketcher.Constraint("Perpendicular", 62, 80),
    Sketcher.Constraint("Perpendicular", 81, 82),
    Sketcher.Constraint("Horizontal", 23, 1, 26, 2),
    Sketcher.Constraint("Horizontal", 6, 2, 43, 1),
    Sketcher.Constraint("Horizontal", 4, 2, 45, 2),
    Sketcher.Constraint("Horizontal", 63, 1, 66, 2),
    Sketcher.Constraint("Equal", 2, 1),
    Sketcher.Constraint("Equal", 65, 5),
    Sketcher.Constraint("Equal", 46, 24),
    Sketcher.Constraint("Equal", 8, 10),
    Sketcher.Constraint("Equal", 10, 12),
    Sketcher.Constraint("Equal", 9, 13),
    Sketcher.Constraint("Equal", 12, 14),
    Sketcher.Constraint("Equal", 14, 16),
    Sketcher.Constraint("Equal", 13, 17),
    Sketcher.Constraint("Equal", 16, 18),
    Sketcher.Constraint("Equal", 18, 20),
    Sketcher.Constraint("Equal", 17, 21),
    Sketcher.Constraint("Equal", 20, 22),
    Sketcher.Constraint("Angle", 8, Q("162 deg")),
    Sketcher.Constraint("Angle", 12, Q("144 deg")),
    Sketcher.Constraint("Radius", 7, Q("0.375 in")),
    Sketcher.Constraint("DistanceX", 25, 2, 25, 1, Q("0.05 in")),
    Sketcher.Constraint("Distance", 9, Q("0.05 in")),
    Sketcher.Constraint("DistanceX", 4, 2, 4, 1, Q("0.035 in")),
    Sketcher.Constraint("Distance", 8, Q("0.035 in")),
    Sketcher.Constraint("DistanceX", 0, 2, 0, 1, 31.446),
])
pocket1 = body.newObject("PartDesign::Pocket", "Pocket")
pocket1.Profile = sketch2
pocket1.Length = Q("1.75 in")

doc.recompute()
